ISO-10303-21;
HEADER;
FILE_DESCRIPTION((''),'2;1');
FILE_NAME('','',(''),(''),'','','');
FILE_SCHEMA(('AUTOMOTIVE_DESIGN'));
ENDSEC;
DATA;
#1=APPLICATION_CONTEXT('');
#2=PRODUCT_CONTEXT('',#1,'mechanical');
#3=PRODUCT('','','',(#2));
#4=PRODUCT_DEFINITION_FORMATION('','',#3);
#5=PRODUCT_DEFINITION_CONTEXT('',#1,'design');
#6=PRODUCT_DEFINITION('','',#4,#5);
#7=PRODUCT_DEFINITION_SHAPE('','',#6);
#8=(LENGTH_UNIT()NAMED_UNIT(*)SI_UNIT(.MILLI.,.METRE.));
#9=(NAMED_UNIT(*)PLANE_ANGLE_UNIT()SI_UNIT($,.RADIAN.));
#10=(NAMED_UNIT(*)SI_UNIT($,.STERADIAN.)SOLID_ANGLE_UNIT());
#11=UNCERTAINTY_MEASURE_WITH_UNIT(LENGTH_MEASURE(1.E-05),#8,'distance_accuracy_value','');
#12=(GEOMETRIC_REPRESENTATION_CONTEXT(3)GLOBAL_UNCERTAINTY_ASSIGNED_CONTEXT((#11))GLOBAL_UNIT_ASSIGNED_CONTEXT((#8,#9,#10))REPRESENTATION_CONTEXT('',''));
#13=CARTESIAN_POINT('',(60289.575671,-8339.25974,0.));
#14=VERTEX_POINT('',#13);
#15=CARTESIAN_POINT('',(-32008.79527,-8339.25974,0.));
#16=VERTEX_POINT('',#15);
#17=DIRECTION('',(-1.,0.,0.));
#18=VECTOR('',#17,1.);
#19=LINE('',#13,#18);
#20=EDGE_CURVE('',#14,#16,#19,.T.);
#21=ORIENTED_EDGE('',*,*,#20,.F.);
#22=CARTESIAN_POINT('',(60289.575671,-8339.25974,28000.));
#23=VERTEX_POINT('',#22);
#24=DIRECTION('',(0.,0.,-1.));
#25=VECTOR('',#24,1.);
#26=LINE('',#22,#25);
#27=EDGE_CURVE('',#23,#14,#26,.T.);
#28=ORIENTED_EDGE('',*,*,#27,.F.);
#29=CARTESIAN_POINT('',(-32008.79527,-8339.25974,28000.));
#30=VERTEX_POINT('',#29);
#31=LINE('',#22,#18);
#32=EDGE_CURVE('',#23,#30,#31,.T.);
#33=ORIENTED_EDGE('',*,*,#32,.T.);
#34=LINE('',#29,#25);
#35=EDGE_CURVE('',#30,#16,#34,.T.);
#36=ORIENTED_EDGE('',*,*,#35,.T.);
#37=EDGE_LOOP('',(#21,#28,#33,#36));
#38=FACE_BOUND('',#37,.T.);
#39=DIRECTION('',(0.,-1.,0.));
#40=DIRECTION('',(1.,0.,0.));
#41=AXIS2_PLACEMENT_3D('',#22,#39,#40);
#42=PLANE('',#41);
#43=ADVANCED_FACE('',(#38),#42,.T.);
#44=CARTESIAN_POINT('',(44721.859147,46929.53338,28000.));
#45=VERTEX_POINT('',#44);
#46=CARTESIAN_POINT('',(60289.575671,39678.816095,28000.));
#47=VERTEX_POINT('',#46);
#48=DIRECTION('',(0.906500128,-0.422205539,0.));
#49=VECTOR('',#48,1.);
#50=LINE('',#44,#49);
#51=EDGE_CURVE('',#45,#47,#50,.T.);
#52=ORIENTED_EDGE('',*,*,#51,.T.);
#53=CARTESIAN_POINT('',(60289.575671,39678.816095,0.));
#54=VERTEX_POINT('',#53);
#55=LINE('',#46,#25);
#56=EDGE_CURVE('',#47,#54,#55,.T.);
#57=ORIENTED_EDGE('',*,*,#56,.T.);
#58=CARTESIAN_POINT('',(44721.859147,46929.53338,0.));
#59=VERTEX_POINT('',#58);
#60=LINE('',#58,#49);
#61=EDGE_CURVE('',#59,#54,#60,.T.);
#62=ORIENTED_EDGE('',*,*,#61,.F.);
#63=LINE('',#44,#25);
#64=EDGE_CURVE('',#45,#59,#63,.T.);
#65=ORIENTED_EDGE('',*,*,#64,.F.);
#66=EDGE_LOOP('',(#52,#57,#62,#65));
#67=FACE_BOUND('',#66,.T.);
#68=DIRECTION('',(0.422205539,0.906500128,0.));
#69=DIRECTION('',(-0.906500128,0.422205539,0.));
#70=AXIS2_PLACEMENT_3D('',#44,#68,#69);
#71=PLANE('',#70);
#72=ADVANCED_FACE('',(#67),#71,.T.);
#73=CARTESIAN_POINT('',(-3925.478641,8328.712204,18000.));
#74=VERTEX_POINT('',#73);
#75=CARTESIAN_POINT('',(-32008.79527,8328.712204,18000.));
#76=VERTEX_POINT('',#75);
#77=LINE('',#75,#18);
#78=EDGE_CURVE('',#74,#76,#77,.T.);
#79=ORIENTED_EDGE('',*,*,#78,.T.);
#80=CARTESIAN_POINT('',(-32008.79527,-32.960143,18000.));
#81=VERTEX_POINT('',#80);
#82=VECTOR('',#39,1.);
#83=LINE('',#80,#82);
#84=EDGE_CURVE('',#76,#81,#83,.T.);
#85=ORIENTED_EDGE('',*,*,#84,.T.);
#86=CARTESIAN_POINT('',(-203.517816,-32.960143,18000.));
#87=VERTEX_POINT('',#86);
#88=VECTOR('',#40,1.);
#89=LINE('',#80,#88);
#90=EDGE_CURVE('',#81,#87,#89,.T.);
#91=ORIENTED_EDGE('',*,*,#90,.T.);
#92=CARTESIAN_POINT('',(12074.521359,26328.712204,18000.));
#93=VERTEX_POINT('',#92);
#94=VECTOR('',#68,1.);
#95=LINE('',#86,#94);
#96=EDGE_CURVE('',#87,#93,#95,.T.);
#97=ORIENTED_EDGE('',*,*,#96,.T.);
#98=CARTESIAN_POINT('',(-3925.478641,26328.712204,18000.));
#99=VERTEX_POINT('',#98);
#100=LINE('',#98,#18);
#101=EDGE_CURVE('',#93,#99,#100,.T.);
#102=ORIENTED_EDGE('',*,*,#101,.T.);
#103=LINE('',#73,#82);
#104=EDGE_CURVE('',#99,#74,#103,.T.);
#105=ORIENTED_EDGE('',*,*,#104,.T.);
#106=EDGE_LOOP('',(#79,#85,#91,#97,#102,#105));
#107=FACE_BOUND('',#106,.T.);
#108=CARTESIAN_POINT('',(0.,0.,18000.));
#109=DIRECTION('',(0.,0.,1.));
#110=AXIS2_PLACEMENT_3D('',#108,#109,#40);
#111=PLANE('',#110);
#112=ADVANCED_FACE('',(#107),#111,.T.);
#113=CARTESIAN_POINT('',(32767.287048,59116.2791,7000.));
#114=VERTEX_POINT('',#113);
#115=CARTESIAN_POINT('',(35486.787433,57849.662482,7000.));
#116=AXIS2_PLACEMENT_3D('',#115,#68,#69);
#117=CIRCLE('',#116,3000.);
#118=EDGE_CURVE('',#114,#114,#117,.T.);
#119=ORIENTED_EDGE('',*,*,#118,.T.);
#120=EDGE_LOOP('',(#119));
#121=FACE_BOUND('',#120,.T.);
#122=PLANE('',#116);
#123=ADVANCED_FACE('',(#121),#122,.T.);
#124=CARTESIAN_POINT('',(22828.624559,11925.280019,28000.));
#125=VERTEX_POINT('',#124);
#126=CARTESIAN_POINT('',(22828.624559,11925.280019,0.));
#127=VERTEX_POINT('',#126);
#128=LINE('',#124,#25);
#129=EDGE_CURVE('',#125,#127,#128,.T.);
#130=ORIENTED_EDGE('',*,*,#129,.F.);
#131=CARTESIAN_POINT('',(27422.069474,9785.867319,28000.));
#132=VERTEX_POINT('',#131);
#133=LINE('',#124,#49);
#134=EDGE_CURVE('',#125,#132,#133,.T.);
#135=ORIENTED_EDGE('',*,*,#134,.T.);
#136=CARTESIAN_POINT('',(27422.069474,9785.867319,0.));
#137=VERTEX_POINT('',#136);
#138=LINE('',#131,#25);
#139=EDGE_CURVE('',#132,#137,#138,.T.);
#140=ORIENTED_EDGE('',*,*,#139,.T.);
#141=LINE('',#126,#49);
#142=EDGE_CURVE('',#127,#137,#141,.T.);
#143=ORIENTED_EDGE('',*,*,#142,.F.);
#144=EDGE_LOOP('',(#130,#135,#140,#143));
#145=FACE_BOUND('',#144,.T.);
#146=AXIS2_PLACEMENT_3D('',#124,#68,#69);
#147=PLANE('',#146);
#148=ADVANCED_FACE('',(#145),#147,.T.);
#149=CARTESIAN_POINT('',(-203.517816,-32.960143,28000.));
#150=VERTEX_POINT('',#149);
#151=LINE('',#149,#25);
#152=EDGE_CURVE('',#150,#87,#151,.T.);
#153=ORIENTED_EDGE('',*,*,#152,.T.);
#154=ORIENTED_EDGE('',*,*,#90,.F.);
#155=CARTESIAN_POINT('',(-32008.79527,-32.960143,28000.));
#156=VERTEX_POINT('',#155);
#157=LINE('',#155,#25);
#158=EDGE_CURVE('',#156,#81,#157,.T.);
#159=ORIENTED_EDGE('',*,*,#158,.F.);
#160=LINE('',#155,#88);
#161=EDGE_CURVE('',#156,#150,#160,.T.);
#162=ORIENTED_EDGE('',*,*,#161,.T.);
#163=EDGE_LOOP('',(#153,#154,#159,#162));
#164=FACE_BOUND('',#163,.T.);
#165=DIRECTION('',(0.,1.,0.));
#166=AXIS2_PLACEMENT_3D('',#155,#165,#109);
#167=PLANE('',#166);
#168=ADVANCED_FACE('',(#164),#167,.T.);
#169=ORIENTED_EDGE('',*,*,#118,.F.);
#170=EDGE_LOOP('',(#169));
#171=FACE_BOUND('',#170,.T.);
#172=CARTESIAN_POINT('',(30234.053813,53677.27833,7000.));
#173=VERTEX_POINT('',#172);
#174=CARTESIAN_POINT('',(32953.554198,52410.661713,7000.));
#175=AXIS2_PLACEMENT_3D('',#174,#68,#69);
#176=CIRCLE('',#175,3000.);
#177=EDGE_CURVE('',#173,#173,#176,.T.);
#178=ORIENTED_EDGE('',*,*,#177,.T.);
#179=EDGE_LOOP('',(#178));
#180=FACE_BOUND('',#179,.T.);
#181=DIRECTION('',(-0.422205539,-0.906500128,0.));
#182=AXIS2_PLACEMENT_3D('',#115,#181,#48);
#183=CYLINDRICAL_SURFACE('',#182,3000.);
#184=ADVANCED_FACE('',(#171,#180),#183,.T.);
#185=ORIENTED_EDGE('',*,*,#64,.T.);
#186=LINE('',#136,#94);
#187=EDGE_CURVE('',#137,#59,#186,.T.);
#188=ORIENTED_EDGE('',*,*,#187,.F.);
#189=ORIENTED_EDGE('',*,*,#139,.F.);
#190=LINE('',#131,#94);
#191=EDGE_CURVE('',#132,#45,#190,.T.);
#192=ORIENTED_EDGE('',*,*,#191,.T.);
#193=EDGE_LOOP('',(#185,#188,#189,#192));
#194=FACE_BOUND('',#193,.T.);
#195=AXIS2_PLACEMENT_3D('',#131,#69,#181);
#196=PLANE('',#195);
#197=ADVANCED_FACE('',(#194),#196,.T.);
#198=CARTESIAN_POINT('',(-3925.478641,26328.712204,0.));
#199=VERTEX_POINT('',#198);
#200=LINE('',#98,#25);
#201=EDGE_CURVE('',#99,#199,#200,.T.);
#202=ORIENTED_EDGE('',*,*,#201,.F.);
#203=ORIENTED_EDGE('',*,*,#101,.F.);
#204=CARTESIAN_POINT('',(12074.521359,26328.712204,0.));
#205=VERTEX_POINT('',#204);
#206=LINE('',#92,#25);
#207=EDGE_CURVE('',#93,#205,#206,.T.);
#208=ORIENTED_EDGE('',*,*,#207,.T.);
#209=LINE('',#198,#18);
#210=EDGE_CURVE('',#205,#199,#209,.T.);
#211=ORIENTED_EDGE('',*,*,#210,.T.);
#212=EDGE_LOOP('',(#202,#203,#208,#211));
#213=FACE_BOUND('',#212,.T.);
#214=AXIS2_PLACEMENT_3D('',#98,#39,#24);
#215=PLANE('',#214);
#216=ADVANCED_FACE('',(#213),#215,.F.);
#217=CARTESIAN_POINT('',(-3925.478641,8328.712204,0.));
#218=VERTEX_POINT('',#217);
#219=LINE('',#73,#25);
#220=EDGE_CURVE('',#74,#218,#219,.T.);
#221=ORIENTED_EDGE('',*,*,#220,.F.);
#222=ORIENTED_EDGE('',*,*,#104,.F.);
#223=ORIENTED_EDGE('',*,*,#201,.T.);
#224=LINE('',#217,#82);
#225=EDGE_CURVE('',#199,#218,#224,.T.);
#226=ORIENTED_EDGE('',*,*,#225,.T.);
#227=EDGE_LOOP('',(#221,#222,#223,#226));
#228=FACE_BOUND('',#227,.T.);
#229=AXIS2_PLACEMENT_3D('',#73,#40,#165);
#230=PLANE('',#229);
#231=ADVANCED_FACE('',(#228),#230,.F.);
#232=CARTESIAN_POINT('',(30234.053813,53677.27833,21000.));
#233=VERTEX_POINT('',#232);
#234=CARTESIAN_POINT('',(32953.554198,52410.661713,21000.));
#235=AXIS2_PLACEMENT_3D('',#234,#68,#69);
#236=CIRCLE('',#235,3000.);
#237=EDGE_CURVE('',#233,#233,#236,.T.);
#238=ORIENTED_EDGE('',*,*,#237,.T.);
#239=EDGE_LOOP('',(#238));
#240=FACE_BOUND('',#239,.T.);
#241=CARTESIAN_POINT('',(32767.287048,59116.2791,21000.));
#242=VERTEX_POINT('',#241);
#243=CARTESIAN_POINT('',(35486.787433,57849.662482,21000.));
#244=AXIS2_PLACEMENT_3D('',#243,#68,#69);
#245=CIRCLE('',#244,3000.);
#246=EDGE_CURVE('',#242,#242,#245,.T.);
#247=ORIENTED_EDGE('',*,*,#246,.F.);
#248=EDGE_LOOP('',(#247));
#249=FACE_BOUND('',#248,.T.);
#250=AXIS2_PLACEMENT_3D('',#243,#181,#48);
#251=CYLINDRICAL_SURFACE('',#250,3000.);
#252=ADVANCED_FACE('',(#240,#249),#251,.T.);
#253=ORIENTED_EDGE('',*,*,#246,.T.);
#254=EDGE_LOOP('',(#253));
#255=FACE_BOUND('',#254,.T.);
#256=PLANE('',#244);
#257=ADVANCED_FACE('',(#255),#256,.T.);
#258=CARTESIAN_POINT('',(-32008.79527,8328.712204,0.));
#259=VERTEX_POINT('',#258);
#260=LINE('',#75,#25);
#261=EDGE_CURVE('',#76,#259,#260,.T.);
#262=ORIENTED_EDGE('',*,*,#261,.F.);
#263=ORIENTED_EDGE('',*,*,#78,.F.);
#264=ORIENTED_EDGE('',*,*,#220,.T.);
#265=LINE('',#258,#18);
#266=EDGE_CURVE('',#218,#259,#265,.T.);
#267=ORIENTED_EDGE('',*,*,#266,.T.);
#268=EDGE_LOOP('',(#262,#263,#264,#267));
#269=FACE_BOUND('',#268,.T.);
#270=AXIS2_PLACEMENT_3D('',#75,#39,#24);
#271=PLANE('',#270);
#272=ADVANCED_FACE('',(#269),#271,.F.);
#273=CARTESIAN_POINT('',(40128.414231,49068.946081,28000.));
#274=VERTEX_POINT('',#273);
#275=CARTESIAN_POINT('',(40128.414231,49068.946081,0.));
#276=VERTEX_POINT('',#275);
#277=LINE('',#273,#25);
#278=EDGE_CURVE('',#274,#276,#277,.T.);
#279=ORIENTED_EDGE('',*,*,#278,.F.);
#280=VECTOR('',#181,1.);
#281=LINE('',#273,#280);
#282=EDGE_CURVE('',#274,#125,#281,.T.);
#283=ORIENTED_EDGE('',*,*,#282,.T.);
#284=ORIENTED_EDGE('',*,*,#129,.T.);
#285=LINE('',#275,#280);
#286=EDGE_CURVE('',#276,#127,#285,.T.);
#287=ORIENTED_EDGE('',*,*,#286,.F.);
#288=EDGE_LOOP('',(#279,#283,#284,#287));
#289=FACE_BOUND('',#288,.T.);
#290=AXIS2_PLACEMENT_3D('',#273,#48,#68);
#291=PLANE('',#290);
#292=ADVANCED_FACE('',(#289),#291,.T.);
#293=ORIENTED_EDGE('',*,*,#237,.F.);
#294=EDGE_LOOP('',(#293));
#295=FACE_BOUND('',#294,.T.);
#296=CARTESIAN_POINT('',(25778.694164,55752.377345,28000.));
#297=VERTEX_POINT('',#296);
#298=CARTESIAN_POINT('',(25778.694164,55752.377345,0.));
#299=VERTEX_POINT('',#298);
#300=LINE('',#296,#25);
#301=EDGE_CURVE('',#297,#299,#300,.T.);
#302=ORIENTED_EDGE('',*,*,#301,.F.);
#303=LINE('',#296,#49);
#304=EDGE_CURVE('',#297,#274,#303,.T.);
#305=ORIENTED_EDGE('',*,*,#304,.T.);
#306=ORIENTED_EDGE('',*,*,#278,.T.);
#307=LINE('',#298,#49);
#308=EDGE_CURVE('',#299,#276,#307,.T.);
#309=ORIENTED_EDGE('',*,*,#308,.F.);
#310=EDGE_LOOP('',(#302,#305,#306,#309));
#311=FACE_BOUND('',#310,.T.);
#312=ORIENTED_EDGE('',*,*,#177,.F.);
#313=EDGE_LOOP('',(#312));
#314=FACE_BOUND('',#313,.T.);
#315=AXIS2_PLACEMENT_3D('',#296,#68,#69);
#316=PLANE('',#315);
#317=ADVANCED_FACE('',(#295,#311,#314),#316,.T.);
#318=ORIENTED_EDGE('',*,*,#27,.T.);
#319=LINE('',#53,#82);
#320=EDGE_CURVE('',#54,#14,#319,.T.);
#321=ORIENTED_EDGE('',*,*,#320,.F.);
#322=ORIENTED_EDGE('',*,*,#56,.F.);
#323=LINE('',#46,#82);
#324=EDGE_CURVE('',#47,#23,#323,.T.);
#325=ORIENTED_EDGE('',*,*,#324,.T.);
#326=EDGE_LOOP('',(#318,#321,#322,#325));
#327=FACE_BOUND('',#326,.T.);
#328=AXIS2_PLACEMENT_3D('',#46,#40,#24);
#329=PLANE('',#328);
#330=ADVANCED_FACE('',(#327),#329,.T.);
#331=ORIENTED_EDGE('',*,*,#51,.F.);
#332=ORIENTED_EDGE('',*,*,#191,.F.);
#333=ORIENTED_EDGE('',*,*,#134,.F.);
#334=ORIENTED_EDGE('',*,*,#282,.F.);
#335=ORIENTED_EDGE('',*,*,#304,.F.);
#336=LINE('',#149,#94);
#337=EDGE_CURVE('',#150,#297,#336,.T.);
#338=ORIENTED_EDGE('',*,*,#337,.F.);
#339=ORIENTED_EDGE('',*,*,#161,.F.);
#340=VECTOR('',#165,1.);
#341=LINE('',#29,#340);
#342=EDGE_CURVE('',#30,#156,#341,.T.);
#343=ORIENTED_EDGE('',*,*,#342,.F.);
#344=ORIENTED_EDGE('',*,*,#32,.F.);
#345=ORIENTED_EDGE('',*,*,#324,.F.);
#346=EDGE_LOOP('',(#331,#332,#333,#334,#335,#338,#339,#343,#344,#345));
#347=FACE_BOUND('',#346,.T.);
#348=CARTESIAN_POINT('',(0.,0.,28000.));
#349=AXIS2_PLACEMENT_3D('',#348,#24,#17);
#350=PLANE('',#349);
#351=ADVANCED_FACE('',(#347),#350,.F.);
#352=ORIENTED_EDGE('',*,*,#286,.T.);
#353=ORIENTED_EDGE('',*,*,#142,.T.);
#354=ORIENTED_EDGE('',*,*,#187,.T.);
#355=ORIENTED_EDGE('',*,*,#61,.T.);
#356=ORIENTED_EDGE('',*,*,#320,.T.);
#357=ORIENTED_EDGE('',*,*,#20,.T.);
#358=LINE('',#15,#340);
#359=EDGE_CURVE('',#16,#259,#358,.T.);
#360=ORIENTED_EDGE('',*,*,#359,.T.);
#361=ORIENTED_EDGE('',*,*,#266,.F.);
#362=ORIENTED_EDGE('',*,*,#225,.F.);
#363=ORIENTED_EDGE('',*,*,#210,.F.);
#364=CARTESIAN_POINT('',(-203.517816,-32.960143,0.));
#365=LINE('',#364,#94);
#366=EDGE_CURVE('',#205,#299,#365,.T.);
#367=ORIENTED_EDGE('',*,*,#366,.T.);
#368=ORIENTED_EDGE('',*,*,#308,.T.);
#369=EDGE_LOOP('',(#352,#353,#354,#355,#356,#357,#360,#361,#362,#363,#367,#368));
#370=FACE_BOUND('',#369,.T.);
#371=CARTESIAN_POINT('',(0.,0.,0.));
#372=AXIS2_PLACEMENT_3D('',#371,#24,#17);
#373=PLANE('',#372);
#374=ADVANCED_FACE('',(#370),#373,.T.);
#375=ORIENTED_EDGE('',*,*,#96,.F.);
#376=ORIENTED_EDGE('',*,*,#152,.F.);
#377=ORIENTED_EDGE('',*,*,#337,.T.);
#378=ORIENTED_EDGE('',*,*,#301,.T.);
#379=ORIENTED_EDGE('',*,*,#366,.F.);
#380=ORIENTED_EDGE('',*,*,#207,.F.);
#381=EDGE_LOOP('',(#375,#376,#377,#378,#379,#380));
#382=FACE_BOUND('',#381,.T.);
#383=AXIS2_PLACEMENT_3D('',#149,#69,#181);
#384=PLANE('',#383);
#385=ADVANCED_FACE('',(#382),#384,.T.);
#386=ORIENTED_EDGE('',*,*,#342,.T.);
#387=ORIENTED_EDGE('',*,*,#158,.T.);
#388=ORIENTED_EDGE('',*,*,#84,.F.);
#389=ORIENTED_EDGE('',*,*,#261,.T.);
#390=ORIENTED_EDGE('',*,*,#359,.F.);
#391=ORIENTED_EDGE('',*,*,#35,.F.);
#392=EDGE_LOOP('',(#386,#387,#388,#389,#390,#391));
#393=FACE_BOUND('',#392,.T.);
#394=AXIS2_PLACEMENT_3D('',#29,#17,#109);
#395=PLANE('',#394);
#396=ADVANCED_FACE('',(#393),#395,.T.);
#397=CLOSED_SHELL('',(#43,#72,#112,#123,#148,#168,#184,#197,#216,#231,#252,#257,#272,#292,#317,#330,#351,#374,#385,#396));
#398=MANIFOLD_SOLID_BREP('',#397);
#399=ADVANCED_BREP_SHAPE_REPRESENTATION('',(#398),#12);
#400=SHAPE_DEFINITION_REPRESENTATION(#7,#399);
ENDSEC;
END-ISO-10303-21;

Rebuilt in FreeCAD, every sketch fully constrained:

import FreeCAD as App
import Part
import Sketcher

V = App.Vector
Q = App.Units.Quantity

doc = App.newDocument("Part")
body = doc.addObject("PartDesign::Body", "Body")

# Sketch on XY plane
sketch1 = body.newObject("Sketcher::SketchObject", "Sketch")
sketch1.AttachmentSupport = (doc.getObject("XY_Plane"), [""])
sketch1.MapMode = "FlatFace"
sketch1.addGeometry([
    Part.LineSegment(V(-32009, -8339, 0), V(60290, -8339, 0)),  # 0
    Part.LineSegment(V(60290, -8339, 0), V(60290, 39679, 0)),  # 1
    Part.LineSegment(V(60290, 39679, 0), V(44722, 46930, 0)),  # 2
    Part.LineSegment(V(44722, 46930, 0), V(27422, 9786, 0)),  # 3
    Part.LineSegment(V(27422, 9786, 0), V(22829, 11925, 0)),  # 4
    Part.LineSegment(V(22829, 11925, 0), V(40128, 49069, 0)),  # 5
    Part.LineSegment(V(40128, 49069, 0), V(25779, 55752, 0)),  # 6
    Part.LineSegment(V(25779, 55752, 0), V(-204, -33, 0)),  # 7
    Part.LineSegment(V(-204, -33, 0), V(-32009, -33, 0)),  # 8
    Part.LineSegment(V(-32009, -33, 0), V(-32009, -8339, 0)),  # 9
], False)
sketch1.addConstraint([
    Sketcher.Constraint("Coincident", 0, 2, 1, 1),
    Sketcher.Constraint("Coincident", 1, 2, 2, 1),
    Sketcher.Constraint("Coincident", 2, 2, 3, 1),
    Sketcher.Constraint("Coincident", 3, 2, 4, 1),
    Sketcher.Constraint("Coincident", 4, 2, 5, 1),
    Sketcher.Constraint("Coincident", 5, 2, 6, 1),
    Sketcher.Constraint("Coincident", 6, 2, 7, 1),
    Sketcher.Constraint("Coincident", 7, 2, 8, 1),
    Sketcher.Constraint("Coincident", 8, 2, 9, 1),
    Sketcher.Constraint("Coincident", 9, 2, 0, 1),
    Sketcher.Constraint("Horizontal", 0),
    Sketcher.Constraint("Vertical", 1),
    Sketcher.Constraint("Horizontal", 8),
    Sketcher.Constraint("Vertical", 9),
    Sketcher.Constraint("Perpendicular", 2, 3),
    Sketcher.Constraint("Perpendicular", 3, 4),
    Sketcher.Constraint("Perpendicular", 4, 5),
    Sketcher.Constraint("Perpendicular", 5, 6),
    Sketcher.Constraint("Perpendicular", 6, 7),
    Sketcher.Constraint("Equal", 3, 5),
    Sketcher.Constraint("Distance", 4, Q("5067.230298 mm")),
    Sketcher.Constraint("DistanceX", 0, 1, 0, 2, Q("92298.370942 mm")),
    Sketcher.Constraint("DistanceY", 3, 2, 4, 2, Q("2139.4127 mm")),
    Sketcher.Constraint("DistanceX", 8, 2, 5, 2, Q("72137.209502 mm")),
    Sketcher.Constraint("Distance", 3, Q("40974.805078 mm")),
    Sketcher.Constraint("Distance", 7, Q("61539.249411 mm")),
    Sketcher.Constraint("DistanceX", 8, 2, 8, 1, Q("31805.277454 mm")),
    Sketcher.Constraint("DistanceY", 1, 1, 1, 2, Q("48018.075835 mm")),
    Sketcher.Constraint("DistanceX", -1, 1, 0, 2, Q("60289.575671 mm")),
    Sketcher.Constraint("DistanceY", 0, 2, -1, 1, Q("8339.25974 mm")),
])
pad1 = body.newObject("PartDesign::Pad", "Pad")
pad1.Profile = sketch1
pad1.Length = 28000

# Sketch on XY plane
sketch2 = body.newObject("Sketcher::SketchObject", "Sketch001")
sketch2.AttachmentSupport = (doc.getObject("XY_Plane"), [""])
sketch2.MapMode = "FlatFace"
sketch2.addGeometry([
    Part.LineSegment(V(-32009, 8329, 0), V(-32009, -33, 0)),  # 0
    Part.LineSegment(V(-32009, -33, 0), V(-204, -33, 0)),  # 1
    Part.LineSegment(V(-204, -33, 0), V(12075, 26329, 0)),  # 2
    Part.LineSegment(V(12075, 26329, 0), V(-3925, 26329, 0)),  # 3
    Part.LineSegment(V(-3925, 26329, 0), V(-3925, 8329, 0)),  # 4
    Part.LineSegment(V(-3925, 8329, 0), V(-32009, 8329, 0)),  # 5
], False)
sketch2.addConstraint([
    Sketcher.Constraint("Coincident", 0, 2, 1, 1),
    Sketcher.Constraint("Coincident", 1, 2, 2, 1),
    Sketcher.Constraint("Coincident", 2, 2, 3, 1),
    Sketcher.Constraint("Coincident", 3, 2, 4, 1),
    Sketcher.Constraint("Coincident", 4, 2, 5, 1),
    Sketcher.Constraint("Coincident", 5, 2, 0, 1),
    Sketcher.Constraint("Vertical", 0),
    Sketcher.Constraint("Horizontal", 1),
    Sketcher.Constraint("Horizontal", 3),
    Sketcher.Constraint("Vertical", 4),
    Sketcher.Constraint("Horizontal", 5),
    Sketcher.Constraint("DistanceX", 3, 2, 3, 1, Q("16000 mm")),
    Sketcher.Constraint("DistanceY", 4, 2, 4, 1, Q("18000 mm")),
    Sketcher.Constraint("DistanceX", 5, 2, 5, 1, Q("28083.316629 mm")),
    Sketcher.Constraint("DistanceX", 1, 1, 1, 2, Q("31805.277454 mm")),
    Sketcher.Constraint("DistanceY", 0, 2, 0, 1, Q("8361.672347 mm")),
    Sketcher.Constraint("DistanceX", 0, 2, -1, 1, Q("32008.79527 mm")),
    Sketcher.Constraint("DistanceY", 0, 2, -1, 1, Q("32.960143 mm")),
])
pad2 = body.newObject("PartDesign::Pad", "Pad001")
pad2.Profile = sketch2
pad2.Length = 18000

# Sketch on an angled plane
sketch3 = body.newObject("Sketcher::SketchObject", "Sketch002")
sketch3.Placement = App.Placement(V(25933.318585, 55680.360491, 0), App.Rotation(V(0.906500128, -0.422205539, 0), V(0, 0, -0.999999999), V(0.422205539, 0.906500128, 0), "ZXY"))
sketch3.addGeometry([
    Part.Circle(V(7744, -21000, 0), V(0, 0, 1), 3000),
    Part.Circle(V(7744, -7000, 0), V(0, 0, 1), 3000),
], False)
sketch3.addConstraint([
    Sketcher.Constraint("Equal", 0, 1),
    Sketcher.Constraint("Vertical", 0, 3, 1, 3),
    Sketcher.Constraint("Diameter", 0, Q("6000 mm")),
    Sketcher.Constraint("DistanceY", 1, 3, -1, 1, Q("6999.999989 mm")),
    Sketcher.Constraint("DistanceY", 0, 3, 1, 3, Q("13999.999978 mm")),
    Sketcher.Constraint("DistanceX", -1, 1, 0, 3, Q("7744.329414 mm")),
])
pad3 = body.newObject("PartDesign::Pad", "Pad002")
pad3.Profile = sketch3
pad3.Length = 6000

doc.recompute()
